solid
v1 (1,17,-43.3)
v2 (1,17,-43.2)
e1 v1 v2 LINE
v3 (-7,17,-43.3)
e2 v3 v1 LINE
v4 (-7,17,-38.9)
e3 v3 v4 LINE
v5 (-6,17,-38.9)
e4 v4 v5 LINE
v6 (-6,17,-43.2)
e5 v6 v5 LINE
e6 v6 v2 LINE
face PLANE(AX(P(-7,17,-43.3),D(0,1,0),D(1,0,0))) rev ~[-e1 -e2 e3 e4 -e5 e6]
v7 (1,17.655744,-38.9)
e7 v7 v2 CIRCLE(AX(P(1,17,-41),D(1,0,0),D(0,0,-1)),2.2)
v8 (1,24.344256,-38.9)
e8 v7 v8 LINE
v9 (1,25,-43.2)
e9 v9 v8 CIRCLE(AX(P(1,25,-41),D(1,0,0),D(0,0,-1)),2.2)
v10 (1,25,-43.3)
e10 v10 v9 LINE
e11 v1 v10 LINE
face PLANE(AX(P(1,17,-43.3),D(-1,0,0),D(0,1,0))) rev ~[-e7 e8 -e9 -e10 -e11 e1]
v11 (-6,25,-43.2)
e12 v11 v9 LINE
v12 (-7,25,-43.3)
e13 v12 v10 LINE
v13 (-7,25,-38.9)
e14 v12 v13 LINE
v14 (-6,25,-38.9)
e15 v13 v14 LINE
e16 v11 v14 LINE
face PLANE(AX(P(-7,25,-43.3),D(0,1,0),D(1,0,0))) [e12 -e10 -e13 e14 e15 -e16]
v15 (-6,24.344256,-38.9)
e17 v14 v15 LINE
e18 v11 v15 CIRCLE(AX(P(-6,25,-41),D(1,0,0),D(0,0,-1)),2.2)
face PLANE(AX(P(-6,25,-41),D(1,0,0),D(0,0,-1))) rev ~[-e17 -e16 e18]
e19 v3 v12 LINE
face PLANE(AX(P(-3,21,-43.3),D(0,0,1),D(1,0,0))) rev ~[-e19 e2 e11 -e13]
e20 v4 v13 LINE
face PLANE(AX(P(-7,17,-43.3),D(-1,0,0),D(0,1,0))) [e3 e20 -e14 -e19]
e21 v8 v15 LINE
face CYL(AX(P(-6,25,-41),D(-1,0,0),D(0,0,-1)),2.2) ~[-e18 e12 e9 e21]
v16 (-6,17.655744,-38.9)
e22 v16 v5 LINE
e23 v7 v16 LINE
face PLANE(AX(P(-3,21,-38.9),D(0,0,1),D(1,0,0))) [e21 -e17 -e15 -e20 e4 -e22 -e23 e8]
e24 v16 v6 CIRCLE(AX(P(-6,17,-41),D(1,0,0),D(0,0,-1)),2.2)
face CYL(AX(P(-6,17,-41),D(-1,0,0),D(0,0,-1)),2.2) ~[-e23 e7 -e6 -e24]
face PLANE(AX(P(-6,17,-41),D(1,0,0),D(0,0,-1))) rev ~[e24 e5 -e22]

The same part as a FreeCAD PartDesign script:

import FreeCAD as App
import Part
import Sketcher

V = App.Vector


def add_polygon(sketch, points):
    """Adds a closed chain of lines whose ends are joined by coincident constraints."""
    first, n = sketch.GeometryCount, len(points)
    for a, b in zip(points, points[1:] + points[:1]):
        sketch.addGeometry(Part.LineSegment(App.Vector(*a, 0), App.Vector(*b, 0)), False)
    for i in range(n):
        sketch.addConstraint(Sketcher.Constraint("Coincident", first + i, 2, first + (i + 1) % n, 1))

doc = App.newDocument("Part")
body = doc.addObject("PartDesign::Body", "Body")

sketch1 = body.newObject("Sketcher::SketchObject", "Sketch")
sketch1.AttachmentSupport = (doc.getObject("XY_Plane"), [""])
sketch1.MapMode = "FlatFace"
sketch1.addGeometry(Part.Circle(V(0, 0, 0), V(0, 0, 1), 2.2), False)
sketch1.addConstraint(Sketcher.Constraint("Coincident", 0, 3, -1, 1))
sketch1.addConstraint(Sketcher.Constraint("Diameter", 0, 4.4))
pad1 = body.newObject("PartDesign::Pad", "Pad")
pad1.Profile = sketch1
pad1.Length = 7
body2 = doc.addObject("PartDesign::Body", "Body001")
doc.recompute()

body.Placement = App.Placement(V(0, 0, 0), App.Rotation(V(0, 1, 0), 90))
boolean = body2.newObject("PartDesign::Boolean", "Boolean")
boolean.Type = "Fuse"
boolean.addObjects([body])
body3 = doc.addObject("PartDesign::Body", "Body002")
doc.recompute()

body2.Placement = App.Placement(V(-6, 25, -41), App.Rotation(V(0, 0, 1), 0))
boolean2 = body3.newObject("PartDesign::Boolean", "Boolean001")
boolean2.Type = "Fuse"
boolean2.addObjects([body2])
body4 = doc.addObject("PartDesign::Body", "Body003")

sketch2 = body4.newObject("Sketcher::SketchObject", "Sketch001")
sketch2.AttachmentSupport = (doc.getObject("XY_Plane003"), [""])
sketch2.MapMode = "FlatFace"
sketch2.AttachmentOffset = App.Placement(V(0, 0, -43.3), App.Rotation())
add_polygon(sketch2, [(-7, 25), (-7, 17), (1, 17), (1, 25)])
sketch2.addConstraint(Sketcher.Constraint("Vertical", 0))
sketch2.addConstraint(Sketcher.Constraint("Horizontal", 1))
sketch2.addConstraint(Sketcher.Constraint("Vertical", 2))
sketch2.addConstraint(Sketcher.Constraint("Horizontal", 3))
sketch2.addConstraint(Sketcher.Constraint("Equal", 3, 0))
sketch2.addConstraint(Sketcher.Constraint("DistanceX", 1, 1, 1, 2, 8.0))
sketch2.addConstraint(Sketcher.Constraint("DistanceX", 0, 2, -1, 1, 7.0))
sketch2.addConstraint(Sketcher.Constraint("DistanceY", -1, 1, 0, 2, 17.0))
pad2 = body4.newObject("PartDesign::Pad", "Pad001")
pad2.Profile = sketch2
pad2.Length = 4.4
body5 = doc.addObject("PartDesign::Body", "Body004")

sketch3 = body5.newObject("Sketcher::SketchObject", "Sketch002")
sketch3.AttachmentSupport = (doc.getObject("XY_Plane004"), [""])
sketch3.MapMode = "FlatFace"
sketch3.addGeometry(Part.Circle(V(0, 0, 0), V(0, 0, 1), 2.2), False)
sketch3.addConstraint(Sketcher.Constraint("Coincident", 0, 3, -1, 1))
sketch3.addConstraint(Sketcher.Constraint("Diameter", 0, 4.4))
pad3 = body5.newObject("PartDesign::Pad", "Pad002")
pad3.Profile = sketch3
pad3.Length = 7
body6 = doc.addObject("PartDesign::Body", "Body005")
doc.recompute()

body5.Placement = App.Placement(V(0, 0, 0), App.Rotation(V(0, 1, 0), 90))
boolean3 = body6.newObject("PartDesign::Boolean", "Boolean002")
boolean3.Type = "Fuse"
boolean3.addObjects([body5])
body7 = doc.addObject("PartDesign::Body", "Body006")
body7.AllowCompound = True
doc.recompute()

body6.Placement = App.Placement(V(-6, 17, -41), App.Rotation(V(0, 0, 1), 0))
boolean4 = body7.newObject("PartDesign::Boolean", "Boolean003")
boolean4.Type = "Fuse"
boolean4.addObjects([body6])
doc.recompute()

boolean5 = body7.newObject("PartDesign::Boolean", "Boolean004")
boolean5.Type = "Fuse"
boolean5.addObjects([body3])
doc.recompute()

boolean6 = body7.newObject("PartDesign::Boolean", "Boolean005")
boolean6.Type = "Fuse"
boolean6.addObjects([body4])

doc.recompute()
